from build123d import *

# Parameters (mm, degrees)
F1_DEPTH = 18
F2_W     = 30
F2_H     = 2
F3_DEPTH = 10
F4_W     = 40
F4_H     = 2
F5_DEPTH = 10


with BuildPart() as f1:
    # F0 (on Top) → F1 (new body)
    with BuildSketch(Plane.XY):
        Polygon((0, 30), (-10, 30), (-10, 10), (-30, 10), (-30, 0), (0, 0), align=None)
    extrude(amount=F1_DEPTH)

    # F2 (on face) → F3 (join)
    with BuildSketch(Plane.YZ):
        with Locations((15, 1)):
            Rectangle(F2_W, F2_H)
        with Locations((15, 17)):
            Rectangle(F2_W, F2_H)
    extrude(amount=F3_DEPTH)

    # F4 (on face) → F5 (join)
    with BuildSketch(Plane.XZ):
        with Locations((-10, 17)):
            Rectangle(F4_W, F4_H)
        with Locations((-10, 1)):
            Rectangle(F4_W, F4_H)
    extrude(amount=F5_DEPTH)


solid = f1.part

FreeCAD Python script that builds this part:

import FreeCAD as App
import Part
import Sketcher

V = App.Vector
Q = App.Units.Quantity

doc = App.newDocument("Part")
params = doc.addObject("Spreadsheet::Sheet", "Params")
for row, (alias, value) in enumerate([
    ("sketch1_width", "10 mm"),
    ("sketch1_width2", "20 mm"),
    ("pad1_length", "18 mm"),
    ("sketch2_width", "30 mm"),
    ("sketch2_height", "2 mm"),
    ("pad2_length", "10 mm"),
    ("sketch3_width", "40 mm"),
    ("sketch3_height", "2 mm"),
    ("pad3_length", "10 mm"),
], start=1):
    params.set(f"A{row}", alias)
    params.set(f"B{row}", "=" + value)
    params.setAlias(f"B{row}", alias)

body = doc.addObject("PartDesign::Body", "Body")

sketch1 = body.newObject("Sketcher::SketchObject", "Sketch")
sketch1.AttachmentSupport = (doc.getObject("XY_Plane"), [""])
sketch1.MapMode = "FlatFace"
sketch1.addGeometry([
    Part.LineSegment(V(0, 30, 0), V(-10, 30, 0)),
    Part.LineSegment(V(-10, 30, 0), V(-10, 10, 0)),
    Part.LineSegment(V(-10, 10, 0), V(-30, 10, 0)),
    Part.LineSegment(V(-30, 10, 0), V(-30, 0, 0)),
    Part.LineSegment(V(-30, 0, 0), V(0, 0, 0)),
    Part.LineSegment(V(0, 0, 0), V(0, 30, 0)),
], False)
sketch1.addConstraint([
    Sketcher.Constraint("Coincident", 0, 2, 1, 1),
    Sketcher.Constraint("Coincident", 1, 2, 2, 1),
    Sketcher.Constraint("Coincident", 2, 2, 3, 1),
    Sketcher.Constraint("Coincident", 3, 2, 4, 1),
    Sketcher.Constraint("Coincident", 4, 2, 5, 1),
    Sketcher.Constraint("Coincident", 5, 2, 0, 1),
    Sketcher.Constraint("Horizontal", 0),
    Sketcher.Constraint("Vertical", 1),
    Sketcher.Constraint("Horizontal", 2),
    Sketcher.Constraint("Vertical", 3),
    Sketcher.Constraint("Horizontal", 4),
    Sketcher.Constraint("Vertical", 5),
    Sketcher.Constraint("Coincident", 4, 2, -1, 1),
    Sketcher.Constraint("Equal", 2, 1),
    Sketcher.Constraint("Equal", 0, 3),
    Sketcher.Constraint("DistanceX", 0, 2, 0, 1, Q("10 mm")),
    Sketcher.Constraint("DistanceX", 2, 2, 2, 1, Q("20 mm")),
])
sketch1.setExpression("Constraints[15]", "Params.sketch1_width")
sketch1.setExpression("Constraints[16]", "Params.sketch1_width2")
pad1 = body.newObject("PartDesign::Pad", "Pad")
pad1.Profile = sketch1
pad1.setExpression("Length", "Params.pad1_length")

sketch2 = body.newObject("Sketcher::SketchObject", "Sketch001")
sketch2.AttachmentSupport = (doc.getObject("YZ_Plane"), [""])
sketch2.MapMode = "FlatFace"
sketch2.addGeometry([
    Part.LineSegment(V(0, 2, 0), V(0, 0, 0)),
    Part.LineSegment(V(0, 0, 0), V(30, 0, 0)),
    Part.LineSegment(V(30, 0, 0), V(30, 2, 0)),
    Part.LineSegment(V(30, 2, 0), V(0, 2, 0)),
    Part.LineSegment(V(0, 18, 0), V(0, 16, 0)),
    Part.LineSegment(V(0, 16, 0), V(30, 16, 0)),
    Part.LineSegment(V(30, 16, 0), V(30, 18, 0)),
    Part.LineSegment(V(30, 18, 0), V(0, 18, 0)),
], False)
sketch2.addConstraint([
    Sketcher.Constraint("Coincident", 0, 2, 1, 1),
    Sketcher.Constraint("Coincident", 1, 2, 2, 1),
    Sketcher.Constraint("Coincident", 2, 2, 3, 1),
    Sketcher.Constraint("Coincident", 3, 2, 0, 1),
    Sketcher.Constraint("Coincident", 4, 2, 5, 1),
    Sketcher.Constraint("Coincident", 5, 2, 6, 1),
    Sketcher.Constraint("Coincident", 6, 2, 7, 1),
    Sketcher.Constraint("Coincident", 7, 2, 4, 1),
    Sketcher.Constraint("Vertical", 0),
    Sketcher.Constraint("Horizontal", 1),
    Sketcher.Constraint("Vertical", 2),
    Sketcher.Constraint("Horizontal", 3),
    Sketcher.Constraint("Vertical", 4),
    Sketcher.Constraint("Horizontal", 5),
    Sketcher.Constraint("Vertical", 6),
    Sketcher.Constraint("Horizontal", 7),
    Sketcher.Constraint("Coincident", 0, 2, -1, 1),
    Sketcher.Constraint("PointOnObject", 4, 2, -2),
    Sketcher.Constraint("Vertical", 2, 2, 5, 2),
    Sketcher.Constraint("Equal", 2, 4),
    Sketcher.Constraint("DistanceX", 1, 1, 1, 2, Q("30 mm")),
    Sketcher.Constraint("DistanceY", 0, 2, 0, 1, Q("2 mm")),
    Sketcher.Constraint("DistanceY", -1, 1, 4, 2, Q("16 mm")),
])
sketch2.setExpression("Constraints[20]", "Params.sketch2_width")
sketch2.setExpression("Constraints[21]", "Params.sketch2_height")
pad2 = body.newObject("PartDesign::Pad", "Pad001")
pad2.Profile = sketch2
pad2.setExpression("Length", "Params.pad2_length")

sketch3 = body.newObject("Sketcher::SketchObject", "Sketch002")
sketch3.AttachmentSupport = (doc.getObject("XZ_Plane"), [""])
sketch3.MapMode = "FlatFace"
sketch3.addGeometry([
    Part.LineSegment(V(-30, 18, 0), V(-30, 16, 0)),
    Part.LineSegment(V(-30, 16, 0), V(10, 16, 0)),
    Part.LineSegment(V(10, 16, 0), V(10, 18, 0)),
    Part.LineSegment(V(10, 18, 0), V(-30, 18, 0)),
    Part.LineSegment(V(-30, 2, 0), V(-30, 0, 0)),
    Part.LineSegment(V(-30, 0, 0), V(10, 0, 0)),
    Part.LineSegment(V(10, 0, 0), V(10, 2, 0)),
    Part.LineSegment(V(10, 2, 0), V(-30, 2, 0)),
], False)
sketch3.addConstraint([
    Sketcher.Constraint("Coincident", 0, 2, 1, 1),
    Sketcher.Constraint("Coincident", 1, 2, 2, 1),
    Sketcher.Constraint("Coincident", 2, 2, 3, 1),
    Sketcher.Constraint("Coincident", 3, 2, 0, 1),
    Sketcher.Constraint("Coincident", 4, 2, 5, 1),
    Sketcher.Constraint("Coincident", 5, 2, 6, 1),
    Sketcher.Constraint("Coincident", 6, 2, 7, 1),
    Sketcher.Constraint("Coincident", 7, 2, 4, 1),
    Sketcher.Constraint("Vertical", 0),
    Sketcher.Constraint("Horizontal", 1),
    Sketcher.Constraint("Vertical", 2),
    Sketcher.Constraint("Horizontal", 3),
    Sketcher.Constraint("Vertical", 4),
    Sketcher.Constraint("Horizontal", 5),
    Sketcher.Constraint("Vertical", 6),
    Sketcher.Constraint("Horizontal", 7),
    Sketcher.Constraint("PointOnObject", 4, 2, -1),
    Sketcher.Constraint("Vertical", 3, 2, 4, 2),
    Sketcher.Constraint("Vertical", 2, 2, 5, 2),
    Sketcher.Constraint("Equal", 2, 4),
    Sketcher.Constraint("DistanceX", 1, 1, 1, 2, Q("40 mm")),
    Sketcher.Constraint("DistanceY", 0, 2, 0, 1, Q("2 mm")),
    Sketcher.Constraint("DistanceX", 0, 2, -1, 1, Q("30 mm")),
    Sketcher.Constraint("DistanceY", -1, 1, 0, 2, Q("16 mm")),
])
sketch3.setExpression("Constraints[20]", "Params.sketch3_width")
sketch3.setExpression("Constraints[21]", "Params.sketch3_height")
pad3 = body.newObject("PartDesign::Pad", "Pad002")
pad3.Profile = sketch3
pad3.setExpression("Length", "Params.pad3_length")

doc.recompute()
